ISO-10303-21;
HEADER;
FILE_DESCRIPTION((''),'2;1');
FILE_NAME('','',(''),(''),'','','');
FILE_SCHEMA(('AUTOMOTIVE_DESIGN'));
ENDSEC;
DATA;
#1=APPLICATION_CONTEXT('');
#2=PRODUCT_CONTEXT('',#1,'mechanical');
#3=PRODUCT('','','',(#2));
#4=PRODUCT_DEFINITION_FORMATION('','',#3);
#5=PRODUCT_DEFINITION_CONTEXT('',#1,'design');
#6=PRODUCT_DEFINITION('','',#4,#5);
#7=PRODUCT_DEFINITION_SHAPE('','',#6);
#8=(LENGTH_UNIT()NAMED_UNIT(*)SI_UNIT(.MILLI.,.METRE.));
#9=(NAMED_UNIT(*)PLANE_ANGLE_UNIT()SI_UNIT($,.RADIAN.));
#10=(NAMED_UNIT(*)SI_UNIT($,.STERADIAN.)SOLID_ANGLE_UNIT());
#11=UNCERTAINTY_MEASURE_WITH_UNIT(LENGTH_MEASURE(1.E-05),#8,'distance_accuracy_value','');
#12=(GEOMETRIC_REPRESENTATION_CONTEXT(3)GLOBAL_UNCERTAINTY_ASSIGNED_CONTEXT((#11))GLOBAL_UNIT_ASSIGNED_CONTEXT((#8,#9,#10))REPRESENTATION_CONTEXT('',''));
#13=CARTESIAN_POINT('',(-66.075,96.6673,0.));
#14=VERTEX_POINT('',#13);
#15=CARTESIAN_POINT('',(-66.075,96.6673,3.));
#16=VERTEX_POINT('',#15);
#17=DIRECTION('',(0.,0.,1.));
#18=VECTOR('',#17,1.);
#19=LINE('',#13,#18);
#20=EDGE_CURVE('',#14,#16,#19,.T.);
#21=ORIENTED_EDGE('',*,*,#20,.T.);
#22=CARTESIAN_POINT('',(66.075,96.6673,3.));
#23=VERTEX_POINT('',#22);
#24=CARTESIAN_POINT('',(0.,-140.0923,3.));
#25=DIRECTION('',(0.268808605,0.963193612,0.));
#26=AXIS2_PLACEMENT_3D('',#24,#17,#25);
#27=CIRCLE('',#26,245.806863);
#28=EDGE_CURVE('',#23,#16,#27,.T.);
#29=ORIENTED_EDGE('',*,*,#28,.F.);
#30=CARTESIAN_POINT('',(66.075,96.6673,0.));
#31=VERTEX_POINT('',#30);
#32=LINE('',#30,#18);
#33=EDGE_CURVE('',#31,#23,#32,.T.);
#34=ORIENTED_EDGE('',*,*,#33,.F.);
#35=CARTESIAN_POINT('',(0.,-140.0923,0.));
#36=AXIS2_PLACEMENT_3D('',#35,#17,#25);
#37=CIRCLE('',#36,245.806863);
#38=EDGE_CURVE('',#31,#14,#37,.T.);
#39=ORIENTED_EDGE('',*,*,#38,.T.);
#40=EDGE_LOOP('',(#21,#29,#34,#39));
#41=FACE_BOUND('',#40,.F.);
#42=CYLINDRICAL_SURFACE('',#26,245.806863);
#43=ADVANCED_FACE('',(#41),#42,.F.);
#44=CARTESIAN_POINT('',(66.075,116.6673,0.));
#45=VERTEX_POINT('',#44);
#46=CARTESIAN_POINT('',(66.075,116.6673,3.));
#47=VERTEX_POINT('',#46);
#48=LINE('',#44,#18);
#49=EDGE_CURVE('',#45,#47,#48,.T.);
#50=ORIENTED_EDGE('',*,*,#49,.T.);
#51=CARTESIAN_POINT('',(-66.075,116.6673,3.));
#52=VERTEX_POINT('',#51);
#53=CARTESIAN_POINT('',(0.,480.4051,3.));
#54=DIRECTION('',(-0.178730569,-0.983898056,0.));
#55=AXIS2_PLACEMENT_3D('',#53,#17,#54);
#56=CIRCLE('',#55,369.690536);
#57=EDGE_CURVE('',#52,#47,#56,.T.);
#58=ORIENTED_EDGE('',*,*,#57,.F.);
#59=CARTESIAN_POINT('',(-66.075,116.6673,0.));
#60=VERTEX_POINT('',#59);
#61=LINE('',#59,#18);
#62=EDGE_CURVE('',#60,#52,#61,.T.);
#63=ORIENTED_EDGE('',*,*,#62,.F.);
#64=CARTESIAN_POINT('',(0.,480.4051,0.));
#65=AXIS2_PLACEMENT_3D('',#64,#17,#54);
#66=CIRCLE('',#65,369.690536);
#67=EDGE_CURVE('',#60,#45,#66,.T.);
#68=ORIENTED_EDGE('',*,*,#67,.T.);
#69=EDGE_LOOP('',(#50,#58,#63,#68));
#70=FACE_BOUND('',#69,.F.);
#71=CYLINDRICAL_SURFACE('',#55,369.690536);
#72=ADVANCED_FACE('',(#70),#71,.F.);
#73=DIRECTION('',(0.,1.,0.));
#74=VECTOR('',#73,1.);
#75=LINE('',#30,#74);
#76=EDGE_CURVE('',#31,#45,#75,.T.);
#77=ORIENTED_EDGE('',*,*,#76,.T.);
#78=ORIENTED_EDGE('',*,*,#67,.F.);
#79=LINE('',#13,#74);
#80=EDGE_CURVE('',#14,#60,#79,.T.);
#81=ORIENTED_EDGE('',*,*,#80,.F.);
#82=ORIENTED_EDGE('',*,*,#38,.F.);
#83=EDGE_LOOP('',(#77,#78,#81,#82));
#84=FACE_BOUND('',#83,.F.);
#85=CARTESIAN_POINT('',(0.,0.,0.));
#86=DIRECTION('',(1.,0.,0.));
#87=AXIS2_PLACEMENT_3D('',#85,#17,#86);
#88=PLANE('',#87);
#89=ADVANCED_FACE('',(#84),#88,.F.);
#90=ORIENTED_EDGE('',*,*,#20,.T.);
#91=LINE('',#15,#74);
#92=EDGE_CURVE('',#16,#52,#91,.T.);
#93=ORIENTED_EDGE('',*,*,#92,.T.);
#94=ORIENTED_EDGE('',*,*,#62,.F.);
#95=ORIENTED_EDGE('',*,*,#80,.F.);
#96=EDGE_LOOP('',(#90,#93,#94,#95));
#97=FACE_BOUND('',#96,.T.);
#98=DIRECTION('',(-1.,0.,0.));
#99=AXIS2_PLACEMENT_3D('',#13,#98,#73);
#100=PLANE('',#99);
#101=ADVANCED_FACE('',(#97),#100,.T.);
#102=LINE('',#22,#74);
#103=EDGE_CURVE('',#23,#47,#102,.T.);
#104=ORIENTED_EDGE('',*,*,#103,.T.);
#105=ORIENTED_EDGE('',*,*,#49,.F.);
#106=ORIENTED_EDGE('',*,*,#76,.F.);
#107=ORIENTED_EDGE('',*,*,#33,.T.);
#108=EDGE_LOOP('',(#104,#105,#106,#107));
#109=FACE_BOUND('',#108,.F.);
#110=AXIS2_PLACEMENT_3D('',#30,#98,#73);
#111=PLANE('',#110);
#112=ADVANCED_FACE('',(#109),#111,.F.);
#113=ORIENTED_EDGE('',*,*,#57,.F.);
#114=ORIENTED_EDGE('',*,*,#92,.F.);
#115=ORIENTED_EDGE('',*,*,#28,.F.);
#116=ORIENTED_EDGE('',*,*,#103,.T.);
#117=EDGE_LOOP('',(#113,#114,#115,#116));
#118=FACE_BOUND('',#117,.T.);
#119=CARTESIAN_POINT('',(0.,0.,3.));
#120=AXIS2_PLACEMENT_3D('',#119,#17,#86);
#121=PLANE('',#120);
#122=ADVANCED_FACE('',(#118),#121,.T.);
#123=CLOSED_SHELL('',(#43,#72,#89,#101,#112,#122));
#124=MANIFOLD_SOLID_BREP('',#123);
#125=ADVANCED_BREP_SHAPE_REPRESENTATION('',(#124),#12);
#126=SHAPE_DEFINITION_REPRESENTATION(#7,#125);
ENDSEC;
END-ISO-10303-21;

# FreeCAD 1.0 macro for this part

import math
import FreeCAD as App
import Part
import Sketcher


def add_polygon(sketch, points):
    """Adds a closed chain of lines whose ends are joined by coincident constraints."""
    first, n = sketch.GeometryCount, len(points)
    for a, b in zip(points, points[1:] + points[:1]):
        sketch.addGeometry(Part.LineSegment(App.Vector(*a, 0), App.Vector(*b, 0)), False)
    for i in range(n):
        sketch.addConstraint(Sketcher.Constraint("Coincident", first + i, 2, first + (i + 1) % n, 1))

doc = App.newDocument("Part")
body = doc.addObject("PartDesign::Body", "Body")

# Sketch on XY plane
sketch1 = body.newObject("Sketcher::SketchObject", "Sketch")
sketch1.AttachmentSupport = (doc.getObject("XY_Plane"), [""])
sketch1.MapMode = "FlatFace"
add_polygon(sketch1, [(66, 97), (66, 117), (-66, 117), (-66, 97)])  # lines 0-3
sketch1.addConstraint([
    Sketcher.Constraint("Vertical", 0),
    Sketcher.Constraint("Horizontal", 1),
    Sketcher.Constraint("Vertical", 2),
    Sketcher.Constraint("Horizontal", 3),
    Sketcher.Constraint("DistanceY", 0, 1, 0, 2, 20.0),
    Sketcher.Constraint("DistanceX", 1, 2, 1, 1, 132.15),
    Sketcher.Constraint("DistanceX", -1, 1, 0, 2, 66.075),
    Sketcher.Constraint("DistanceY", -1, 1, 0, 2, 116.6673),
])
pad1 = body.newObject("PartDesign::Pad", "Pad")
pad1.Profile = sketch1
pad1.Length = 3

# Sketch on XY plane
sketch2 = body.newObject("Sketcher::SketchObject", "Sketch001")
sketch2.AttachmentSupport = (doc.getObject("XY_Plane"), [""])
sketch2.MapMode = "FlatFace"
sketch2.AttachmentOffset = App.Placement(App.Vector(0, 0, 3), App.Rotation())
sketch2.addGeometry([
    Part.ArcOfCircle(Part.Circle(App.Vector(0, -140, 0), App.Vector(0, 0, 1), 246), math.radians(74), math.radians(106)),
    Part.LineSegment(App.Vector(-66, 97, 0), App.Vector(66, 97, 0)),
    Part.LineSegment(App.Vector(66, 117, 0), App.Vector(-66, 117, 0)),
    Part.ArcOfCircle(Part.Circle(App.Vector(0, 480, 0), App.Vector(0, 0, 1), 370), math.radians(-100), math.radians(-80)),
], False)
sketch2.addConstraint([
    Sketcher.Constraint("Coincident", 0, 1, 1, 2),
    Sketcher.Constraint("Coincident", 1, 1, 0, 2),
    Sketcher.Constraint("Coincident", 2, 1, 3, 2),
    Sketcher.Constraint("Coincident", 3, 1, 2, 2),
    Sketcher.Constraint("Horizontal", 1),
    Sketcher.Constraint("Horizontal", 2),
    Sketcher.Constraint("PointOnObject", 0, 3, -2),
    Sketcher.Constraint("PointOnObject", 3, 3, -2),
    Sketcher.Constraint("Vertical", 0, 1, 2, 1),
    Sketcher.Constraint("DistanceY", 0, 1, 2, 1, 20.0),
    Sketcher.Constraint("DistanceX", 1, 1, 1, 2, 132.15),
    Sketcher.Constraint("Radius", 0, 245.8069),
    Sketcher.Constraint("Radius", 3, 369.6905),
    Sketcher.Constraint("DistanceY", -1, 1, 3, 3, 480.405),
])
pocket1 = body.newObject("PartDesign::Pocket", "Pocket")
pocket1.Profile = sketch2
pocket1.Type = "ThroughAll"

doc.recompute()
